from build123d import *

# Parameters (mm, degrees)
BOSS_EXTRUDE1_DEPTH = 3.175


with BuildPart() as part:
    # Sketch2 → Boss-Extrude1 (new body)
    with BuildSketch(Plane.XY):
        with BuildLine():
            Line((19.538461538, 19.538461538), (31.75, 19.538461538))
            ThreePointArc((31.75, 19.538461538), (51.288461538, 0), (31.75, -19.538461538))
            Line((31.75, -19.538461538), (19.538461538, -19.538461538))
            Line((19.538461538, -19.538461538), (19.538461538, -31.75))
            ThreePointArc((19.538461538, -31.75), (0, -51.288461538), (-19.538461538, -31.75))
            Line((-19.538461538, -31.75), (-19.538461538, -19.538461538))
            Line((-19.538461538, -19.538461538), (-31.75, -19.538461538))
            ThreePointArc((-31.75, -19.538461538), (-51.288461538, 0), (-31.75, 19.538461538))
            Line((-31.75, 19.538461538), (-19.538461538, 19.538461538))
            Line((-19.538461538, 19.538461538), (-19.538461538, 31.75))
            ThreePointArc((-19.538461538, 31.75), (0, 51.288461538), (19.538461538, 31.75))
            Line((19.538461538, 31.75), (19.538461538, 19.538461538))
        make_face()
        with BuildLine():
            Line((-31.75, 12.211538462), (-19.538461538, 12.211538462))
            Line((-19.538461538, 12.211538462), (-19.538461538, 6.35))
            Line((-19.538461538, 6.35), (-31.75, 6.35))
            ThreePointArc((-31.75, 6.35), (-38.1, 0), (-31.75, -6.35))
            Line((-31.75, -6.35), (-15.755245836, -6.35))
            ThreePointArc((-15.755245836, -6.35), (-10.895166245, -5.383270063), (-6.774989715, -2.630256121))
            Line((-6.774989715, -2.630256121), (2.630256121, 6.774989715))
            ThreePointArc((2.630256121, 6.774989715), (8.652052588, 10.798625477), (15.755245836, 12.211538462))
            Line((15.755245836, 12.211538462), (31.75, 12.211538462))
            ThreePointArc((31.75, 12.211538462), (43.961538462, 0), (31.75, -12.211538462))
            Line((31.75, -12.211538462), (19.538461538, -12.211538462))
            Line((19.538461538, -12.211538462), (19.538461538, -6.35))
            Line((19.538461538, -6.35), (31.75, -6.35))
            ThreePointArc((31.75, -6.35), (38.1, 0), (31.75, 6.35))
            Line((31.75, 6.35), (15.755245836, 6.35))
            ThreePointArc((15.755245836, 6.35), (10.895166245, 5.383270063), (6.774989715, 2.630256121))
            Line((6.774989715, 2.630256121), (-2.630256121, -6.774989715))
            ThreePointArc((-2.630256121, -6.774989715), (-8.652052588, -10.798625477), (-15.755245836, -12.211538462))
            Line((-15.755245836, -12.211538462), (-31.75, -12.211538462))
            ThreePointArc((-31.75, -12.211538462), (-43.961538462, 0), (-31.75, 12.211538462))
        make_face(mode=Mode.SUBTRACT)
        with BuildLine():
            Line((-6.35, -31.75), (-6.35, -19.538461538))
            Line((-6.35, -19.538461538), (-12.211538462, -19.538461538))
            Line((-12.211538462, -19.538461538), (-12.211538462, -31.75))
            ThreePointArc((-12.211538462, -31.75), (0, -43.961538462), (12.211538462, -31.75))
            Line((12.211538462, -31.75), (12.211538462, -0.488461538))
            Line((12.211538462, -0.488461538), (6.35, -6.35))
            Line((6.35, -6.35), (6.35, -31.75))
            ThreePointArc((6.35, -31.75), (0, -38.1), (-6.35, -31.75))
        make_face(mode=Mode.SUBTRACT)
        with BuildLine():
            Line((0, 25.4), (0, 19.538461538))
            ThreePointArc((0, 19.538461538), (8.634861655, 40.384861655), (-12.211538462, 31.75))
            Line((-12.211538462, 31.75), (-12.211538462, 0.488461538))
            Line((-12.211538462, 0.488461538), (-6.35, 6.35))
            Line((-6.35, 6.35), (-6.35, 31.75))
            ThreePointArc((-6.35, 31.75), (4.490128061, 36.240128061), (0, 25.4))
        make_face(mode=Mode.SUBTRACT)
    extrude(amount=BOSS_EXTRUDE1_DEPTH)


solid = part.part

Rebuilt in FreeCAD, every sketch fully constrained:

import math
import FreeCAD as App
import Part
import Sketcher

V = App.Vector
Q = App.Units.Quantity

doc = App.newDocument("Part")
body = doc.addObject("PartDesign::Body", "Body")

# Sketch on XY plane
sketch1 = doc.addObject("Sketcher::SketchObject", "Sketch")
body.addObject(sketch1)
sketch1.AttachmentSupport = (doc.XY_Plane, [""])
sketch1.MapMode = "FlatFace"
sketch1.addGeometry(Part.LineSegment(V(32, 20, 0), V(20, 20, 0)), False)
sketch1.addGeometry(Part.LineSegment(V(20, 20, 0), V(20, 32, 0)), False)
sketch1.addGeometry(Part.ArcOfCircle(Part.Circle(V(0, 32, 0), V(0, 0, 1), 20), math.radians(0), math.radians(180)), False)
sketch1.addGeometry(Part.LineSegment(V(-20, 32, 0), V(-20, 20, 0)), False)
sketch1.addGeometry(Part.LineSegment(V(-20, 20, 0), V(-32, 20, 0)), False)
sketch1.addGeometry(Part.ArcOfCircle(Part.Circle(V(-32, 0, 0), V(0, 0, 1), 20), math.radians(90), math.radians(270)), False)
sketch1.addGeometry(Part.LineSegment(V(-32, -20, 0), V(-20, -20, 0)), False)
sketch1.addGeometry(Part.LineSegment(V(-20, -20, 0), V(-20, -32, 0)), False)
sketch1.addGeometry(Part.ArcOfCircle(Part.Circle(V(0, -32, 0), V(0, 0, 1), 20), math.radians(180), math.radians(360)), False)
sketch1.addGeometry(Part.LineSegment(V(20, -32, 0), V(20, -20, 0)), False)
sketch1.addGeometry(Part.LineSegment(V(20, -20, 0), V(32, -20, 0)), False)
sketch1.addGeometry(Part.ArcOfCircle(Part.Circle(V(32, 0, 0), V(0, 0, 1), 20), math.radians(-90), math.radians(90)), False)
sketch1.addGeometry(Part.ArcOfCircle(Part.Circle(V(0, -32, 0), V(0, 0, 1), 6), math.radians(180), math.radians(360)), False)
sketch1.addGeometry(Part.LineSegment(V(6, -32, 0), V(6, -6, 0)), False)
sketch1.addGeometry(Part.LineSegment(V(6, -6, 0), V(12, 0, 0)), False)
sketch1.addGeometry(Part.LineSegment(V(12, 0, 0), V(12, -32, 0)), False)
sketch1.addGeometry(Part.ArcOfCircle(Part.Circle(V(0, -32, 0), V(0, 0, 1), 12), math.radians(180), math.radians(360)), False)
sketch1.addGeometry(Part.LineSegment(V(-12, -32, 0), V(-12, -20, 0)), False)
sketch1.addGeometry(Part.LineSegment(V(-12, -20, 0), V(-6, -20, 0)), False)
sketch1.addGeometry(Part.LineSegment(V(-6, -20, 0), V(-6, -32, 0)), False)
sketch1.addGeometry(Part.LineSegment(V(-32, 12, 0), V(-20, 12, 0)), False)
sketch1.addGeometry(Part.LineSegment(V(-20, 12, 0), V(-20, 6, 0)), False)
sketch1.addGeometry(Part.LineSegment(V(-20, 6, 0), V(-32, 6, 0)), False)
sketch1.addGeometry(Part.ArcOfCircle(Part.Circle(V(-32, 0, 0), V(0, 0, 1), 6), math.radians(90), math.radians(270)), False)
sketch1.addGeometry(Part.LineSegment(V(-32, -6, 0), V(-16, -6, 0)), False)
sketch1.addGeometry(Part.ArcOfCircle(Part.Circle(V(-16, 6, 0), V(0, 0, 1), 13), math.radians(-90), math.radians(-45)), False)
sketch1.addGeometry(Part.LineSegment(V(-7, -3, 0), V(3, 7, 0)), False)
sketch1.addGeometry(Part.ArcOfCircle(Part.Circle(V(16, -6, 0), V(0, 0, 1), 19), math.radians(90), math.radians(135)), False)
sketch1.addGeometry(Part.LineSegment(V(16, 12, 0), V(32, 12, 0)), False)
sketch1.addGeometry(Part.ArcOfCircle(Part.Circle(V(32, 0, 0), V(0, 0, 1), 12), math.radians(-90), math.radians(90)), False)
sketch1.addGeometry(Part.LineSegment(V(32, -12, 0), V(20, -12, 0)), False)
sketch1.addGeometry(Part.LineSegment(V(20, -12, 0), V(20, -6, 0)), False)
sketch1.addGeometry(Part.LineSegment(V(20, -6, 0), V(32, -6, 0)), False)
sketch1.addGeometry(Part.ArcOfCircle(Part.Circle(V(32, 0, 0), V(0, 0, 1), 6), math.radians(-90), math.radians(90)), False)
sketch1.addGeometry(Part.LineSegment(V(32, 6, 0), V(16, 6, 0)), False)
sketch1.addGeometry(Part.ArcOfCircle(Part.Circle(V(16, -6, 0), V(0, 0, 1), 13), math.radians(90), math.radians(135)), False)
sketch1.addGeometry(Part.LineSegment(V(7, 3, 0), V(-3, -7, 0)), False)
sketch1.addGeometry(Part.ArcOfCircle(Part.Circle(V(-16, 6, 0), V(0, 0, 1), 19), math.radians(-90), math.radians(-45)), False)
sketch1.addGeometry(Part.LineSegment(V(-16, -12, 0), V(-32, -12, 0)), False)
sketch1.addGeometry(Part.ArcOfCircle(Part.Circle(V(-32, 0, 0), V(0, 0, 1), 12), math.radians(90), math.radians(270)), False)
sketch1.addGeometry(Part.ArcOfCircle(Part.Circle(V(0, 32, 0), V(0, 0, 1), 6), math.radians(-90), math.radians(180)), False)
sketch1.addGeometry(Part.LineSegment(V(-6, 32, 0), V(-6, 6, 0)), False)
sketch1.addGeometry(Part.LineSegment(V(-6, 6, 0), V(-12, 0, 0)), False)
sketch1.addGeometry(Part.LineSegment(V(-12, 0, 0), V(-12, 32, 0)), False)
sketch1.addGeometry(Part.ArcOfCircle(Part.Circle(V(0, 32, 0), V(0, 0, 1), 12), math.radians(-90), math.radians(180)), False)
sketch1.addGeometry(Part.LineSegment(V(0, 20, 0), V(0, 25, 0)), False)
sketch1.addConstraint(Sketcher.Constraint("Coincident", 0, 2, 1, 1))
sketch1.addConstraint(Sketcher.Constraint("Tangent", 1, 2, 2, 1))
sketch1.addConstraint(Sketcher.Constraint("Tangent", 2, 2, 3, 1))
sketch1.addConstraint(Sketcher.Constraint("Coincident", 3, 2, 4, 1))
sketch1.addConstraint(Sketcher.Constraint("Tangent", 4, 2, 5, 1))
sketch1.addConstraint(Sketcher.Constraint("Tangent", 5, 2, 6, 1))
sketch1.addConstraint(Sketcher.Constraint("Coincident", 6, 2, 7, 1))
sketch1.addConstraint(Sketcher.Constraint("Tangent", 7, 2, 8, 1))
sketch1.addConstraint(Sketcher.Constraint("Tangent", 8, 2, 9, 1))
sketch1.addConstraint(Sketcher.Constraint("Coincident", 9, 2, 10, 1))
sketch1.addConstraint(Sketcher.Constraint("Tangent", 10, 2, 11, 1))
sketch1.addConstraint(Sketcher.Constraint("Tangent", 11, 2, 0, 1))
sketch1.addConstraint(Sketcher.Constraint("Tangent", 12, 2, 13, 1))
sketch1.addConstraint(Sketcher.Constraint("Coincident", 13, 2, 14, 1))
sketch1.addConstraint(Sketcher.Constraint("Coincident", 14, 2, 15, 1))
sketch1.addConstraint(Sketcher.Constraint("Tangent", 15, 2, 16, 2))
sketch1.addConstraint(Sketcher.Constraint("Tangent", 16, 1, 17, 1))
sketch1.addConstraint(Sketcher.Constraint("Coincident", 17, 2, 18, 1))
sketch1.addConstraint(Sketcher.Constraint("Coincident", 18, 2, 19, 1))
sketch1.addConstraint(Sketcher.Constraint("Tangent", 19, 2, 12, 1))
sketch1.addConstraint(Sketcher.Constraint("Coincident", 20, 2, 21, 1))
sketch1.addConstraint(Sketcher.Constraint("Coincident", 21, 2, 22, 1))
sketch1.addConstraint(Sketcher.Constraint("Tangent", 22, 2, 23, 1))
sketch1.addConstraint(Sketcher.Constraint("Tangent", 23, 2, 24, 1))
sketch1.addConstraint(Sketcher.Constraint("Tangent", 24, 2, 25, 1))
sketch1.addConstraint(Sketcher.Constraint("Tangent", 25, 2, 26, 1))
sketch1.addConstraint(Sketcher.Constraint("Tangent", 26, 2, 27, 2))
sketch1.addConstraint(Sketcher.Constraint("Tangent", 27, 1, 28, 1))
sketch1.addConstraint(Sketcher.Constraint("Tangent", 28, 2, 29, 2))
sketch1.addConstraint(Sketcher.Constraint("Tangent", 29, 1, 30, 1))
sketch1.addConstraint(Sketcher.Constraint("Coincident", 30, 2, 31, 1))
sketch1.addConstraint(Sketcher.Constraint("Coincident", 31, 2, 32, 1))
sketch1.addConstraint(Sketcher.Constraint("Tangent", 32, 2, 33, 1))
sketch1.addConstraint(Sketcher.Constraint("Tangent", 33, 2, 34, 1))
sketch1.addConstraint(Sketcher.Constraint("Tangent", 34, 2, 35, 1))
sketch1.addConstraint(Sketcher.Constraint("Tangent", 35, 2, 36, 1))
sketch1.addConstraint(Sketcher.Constraint("Tangent", 36, 2, 37, 2))
sketch1.addConstraint(Sketcher.Constraint("Tangent", 37, 1, 38, 1))
sketch1.addConstraint(Sketcher.Constraint("Tangent", 38, 2, 39, 2))
sketch1.addConstraint(Sketcher.Constraint("Tangent", 39, 1, 20, 1))
sketch1.addConstraint(Sketcher.Constraint("Tangent", 40, 2, 41, 1))
sketch1.addConstraint(Sketcher.Constraint("Coincident", 41, 2, 42, 1))
sketch1.addConstraint(Sketcher.Constraint("Coincident", 42, 2, 43, 1))
sketch1.addConstraint(Sketcher.Constraint("Tangent", 43, 2, 44, 2))
sketch1.addConstraint(Sketcher.Constraint("Coincident", 44, 1, 45, 1))
sketch1.addConstraint(Sketcher.Constraint("Coincident", 45, 2, 40, 1))
sketch1.addConstraint(Sketcher.Constraint("Horizontal", 0))
sketch1.addConstraint(Sketcher.Constraint("Vertical", 1))
sketch1.addConstraint(Sketcher.Constraint("Vertical", 3))
sketch1.addConstraint(Sketcher.Constraint("Horizontal", 4))
sketch1.addConstraint(Sketcher.Constraint("Horizontal", 6))
sketch1.addConstraint(Sketcher.Constraint("Vertical", 7))
sketch1.addConstraint(Sketcher.Constraint("Vertical", 9))
sketch1.addConstraint(Sketcher.Constraint("Horizontal", 10))
sketch1.addConstraint(Sketcher.Constraint("Vertical", 13))
sketch1.addConstraint(Sketcher.Constraint("Vertical", 15))
sketch1.addConstraint(Sketcher.Constraint("Vertical", 17))
sketch1.addConstraint(Sketcher.Constraint("Horizontal", 18))
sketch1.addConstraint(Sketcher.Constraint("Vertical", 19))
sketch1.addConstraint(Sketcher.Constraint("Horizontal", 20))
sketch1.addConstraint(Sketcher.Constraint("Vertical", 21))
sketch1.addConstraint(Sketcher.Constraint("Horizontal", 22))
sketch1.addConstraint(Sketcher.Constraint("Horizontal", 24))
sketch1.addConstraint(Sketcher.Constraint("Horizontal", 28))
sketch1.addConstraint(Sketcher.Constraint("Horizontal", 30))
sketch1.addConstraint(Sketcher.Constraint("Vertical", 31))
sketch1.addConstraint(Sketcher.Constraint("Horizontal", 32))
sketch1.addConstraint(Sketcher.Constraint("Horizontal", 34))
sketch1.addConstraint(Sketcher.Constraint("Horizontal", 38))
sketch1.addConstraint(Sketcher.Constraint("Vertical", 41))
sketch1.addConstraint(Sketcher.Constraint("Vertical", 43))
sketch1.addConstraint(Sketcher.Constraint("Vertical", 45))
sketch1.addConstraint(Sketcher.Constraint("Coincident", 12, 3, 8, 3))
sketch1.addConstraint(Sketcher.Constraint("Coincident", 16, 3, 8, 3))
sketch1.addConstraint(Sketcher.Constraint("Coincident", 23, 3, 5, 3))
sketch1.addConstraint(Sketcher.Constraint("Coincident", 29, 3, 11, 3))
sketch1.addConstraint(Sketcher.Constraint("Coincident", 33, 3, 11, 3))
sketch1.addConstraint(Sketcher.Constraint("Coincident", 35, 3, 27, 3))
sketch1.addConstraint(Sketcher.Constraint("Coincident", 37, 3, 25, 3))
sketch1.addConstraint(Sketcher.Constraint("Coincident", 39, 3, 5, 3))
sketch1.addConstraint(Sketcher.Constraint("Coincident", 40, 3, 2, 3))
sketch1.addConstraint(Sketcher.Constraint("Coincident", 44, 3, 2, 3))
sketch1.addConstraint(Sketcher.Constraint("Equal", 2, 5))
sketch1.addConstraint(Sketcher.Constraint("Equal", 5, 8))
sketch1.addConstraint(Sketcher.Constraint("Equal", 8, 11))
sketch1.addConstraint(Sketcher.Constraint("Equal", 12, 23))
sketch1.addConstraint(Sketcher.Constraint("Equal", 16, 29))
sketch1.addConstraint(Sketcher.Constraint("Equal", 23, 33))
sketch1.addConstraint(Sketcher.Constraint("Equal", 25, 35))
sketch1.addConstraint(Sketcher.Constraint("Equal", 27, 37))
sketch1.addConstraint(Sketcher.Constraint("Equal", 33, 40))
sketch1.addConstraint(Sketcher.Constraint("Equal", 39, 44))
sketch1.addConstraint(Sketcher.Constraint("Symmetric", 2, 3, 8, 3, -1, 1))
sketch1.addConstraint(Sketcher.Constraint("Symmetric", 5, 3, 11, 3, -1, 1))
sketch1.addConstraint(Sketcher.Constraint("Symmetric", 0, 2, 3, 2, -2))
sketch1.addConstraint(Sketcher.Constraint("PointOnObject", 44, 1, -2))
sketch1.addConstraint(Sketcher.Constraint("Parallel", 14, 26))
sketch1.addConstraint(Sketcher.Constraint("Parallel", 36, 42))
sketch1.addConstraint(Sketcher.Constraint("Horizontal", 35, 3, 13, 2))
sketch1.addConstraint(Sketcher.Constraint("Horizontal", 10, 2, 17, 2))
sketch1.addConstraint(Sketcher.Constraint("Horizontal", 37, 3, 21, 2))
sketch1.addConstraint(Sketcher.Constraint("Horizontal", 34, 2, 41, 2))
sketch1.addConstraint(Sketcher.Constraint("Horizontal", 11, 2, 44, 1))
sketch1.addConstraint(Sketcher.Constraint("Vertical", 7, 2, 20, 2))
sketch1.addConstraint(Sketcher.Constraint("Vertical", 9, 2, 30, 2))
sketch1.addConstraint(Sketcher.Constraint("Equal", 24, 28))
sketch1.addConstraint(Sketcher.Constraint("Equal", 32, 1))
sketch1.addConstraint(Sketcher.Constraint("Radius", 25, Q("0.5 in")))
sketch1.addConstraint(Sketcher.Constraint("DistanceY", 13, 1, 13, 2, Q("1 in")))
sketch1.addConstraint(Sketcher.Constraint("Angle", 14, Q("45 deg")))
sketch1.addConstraint(Sketcher.Constraint("Radius", 2, 19.538462))
pad1 = doc.addObject("PartDesign::Pad", "Pad")
body.addObject(pad1)
pad1.Profile = sketch1
pad1.Length = Q("0.125 in")

doc.recompute()
